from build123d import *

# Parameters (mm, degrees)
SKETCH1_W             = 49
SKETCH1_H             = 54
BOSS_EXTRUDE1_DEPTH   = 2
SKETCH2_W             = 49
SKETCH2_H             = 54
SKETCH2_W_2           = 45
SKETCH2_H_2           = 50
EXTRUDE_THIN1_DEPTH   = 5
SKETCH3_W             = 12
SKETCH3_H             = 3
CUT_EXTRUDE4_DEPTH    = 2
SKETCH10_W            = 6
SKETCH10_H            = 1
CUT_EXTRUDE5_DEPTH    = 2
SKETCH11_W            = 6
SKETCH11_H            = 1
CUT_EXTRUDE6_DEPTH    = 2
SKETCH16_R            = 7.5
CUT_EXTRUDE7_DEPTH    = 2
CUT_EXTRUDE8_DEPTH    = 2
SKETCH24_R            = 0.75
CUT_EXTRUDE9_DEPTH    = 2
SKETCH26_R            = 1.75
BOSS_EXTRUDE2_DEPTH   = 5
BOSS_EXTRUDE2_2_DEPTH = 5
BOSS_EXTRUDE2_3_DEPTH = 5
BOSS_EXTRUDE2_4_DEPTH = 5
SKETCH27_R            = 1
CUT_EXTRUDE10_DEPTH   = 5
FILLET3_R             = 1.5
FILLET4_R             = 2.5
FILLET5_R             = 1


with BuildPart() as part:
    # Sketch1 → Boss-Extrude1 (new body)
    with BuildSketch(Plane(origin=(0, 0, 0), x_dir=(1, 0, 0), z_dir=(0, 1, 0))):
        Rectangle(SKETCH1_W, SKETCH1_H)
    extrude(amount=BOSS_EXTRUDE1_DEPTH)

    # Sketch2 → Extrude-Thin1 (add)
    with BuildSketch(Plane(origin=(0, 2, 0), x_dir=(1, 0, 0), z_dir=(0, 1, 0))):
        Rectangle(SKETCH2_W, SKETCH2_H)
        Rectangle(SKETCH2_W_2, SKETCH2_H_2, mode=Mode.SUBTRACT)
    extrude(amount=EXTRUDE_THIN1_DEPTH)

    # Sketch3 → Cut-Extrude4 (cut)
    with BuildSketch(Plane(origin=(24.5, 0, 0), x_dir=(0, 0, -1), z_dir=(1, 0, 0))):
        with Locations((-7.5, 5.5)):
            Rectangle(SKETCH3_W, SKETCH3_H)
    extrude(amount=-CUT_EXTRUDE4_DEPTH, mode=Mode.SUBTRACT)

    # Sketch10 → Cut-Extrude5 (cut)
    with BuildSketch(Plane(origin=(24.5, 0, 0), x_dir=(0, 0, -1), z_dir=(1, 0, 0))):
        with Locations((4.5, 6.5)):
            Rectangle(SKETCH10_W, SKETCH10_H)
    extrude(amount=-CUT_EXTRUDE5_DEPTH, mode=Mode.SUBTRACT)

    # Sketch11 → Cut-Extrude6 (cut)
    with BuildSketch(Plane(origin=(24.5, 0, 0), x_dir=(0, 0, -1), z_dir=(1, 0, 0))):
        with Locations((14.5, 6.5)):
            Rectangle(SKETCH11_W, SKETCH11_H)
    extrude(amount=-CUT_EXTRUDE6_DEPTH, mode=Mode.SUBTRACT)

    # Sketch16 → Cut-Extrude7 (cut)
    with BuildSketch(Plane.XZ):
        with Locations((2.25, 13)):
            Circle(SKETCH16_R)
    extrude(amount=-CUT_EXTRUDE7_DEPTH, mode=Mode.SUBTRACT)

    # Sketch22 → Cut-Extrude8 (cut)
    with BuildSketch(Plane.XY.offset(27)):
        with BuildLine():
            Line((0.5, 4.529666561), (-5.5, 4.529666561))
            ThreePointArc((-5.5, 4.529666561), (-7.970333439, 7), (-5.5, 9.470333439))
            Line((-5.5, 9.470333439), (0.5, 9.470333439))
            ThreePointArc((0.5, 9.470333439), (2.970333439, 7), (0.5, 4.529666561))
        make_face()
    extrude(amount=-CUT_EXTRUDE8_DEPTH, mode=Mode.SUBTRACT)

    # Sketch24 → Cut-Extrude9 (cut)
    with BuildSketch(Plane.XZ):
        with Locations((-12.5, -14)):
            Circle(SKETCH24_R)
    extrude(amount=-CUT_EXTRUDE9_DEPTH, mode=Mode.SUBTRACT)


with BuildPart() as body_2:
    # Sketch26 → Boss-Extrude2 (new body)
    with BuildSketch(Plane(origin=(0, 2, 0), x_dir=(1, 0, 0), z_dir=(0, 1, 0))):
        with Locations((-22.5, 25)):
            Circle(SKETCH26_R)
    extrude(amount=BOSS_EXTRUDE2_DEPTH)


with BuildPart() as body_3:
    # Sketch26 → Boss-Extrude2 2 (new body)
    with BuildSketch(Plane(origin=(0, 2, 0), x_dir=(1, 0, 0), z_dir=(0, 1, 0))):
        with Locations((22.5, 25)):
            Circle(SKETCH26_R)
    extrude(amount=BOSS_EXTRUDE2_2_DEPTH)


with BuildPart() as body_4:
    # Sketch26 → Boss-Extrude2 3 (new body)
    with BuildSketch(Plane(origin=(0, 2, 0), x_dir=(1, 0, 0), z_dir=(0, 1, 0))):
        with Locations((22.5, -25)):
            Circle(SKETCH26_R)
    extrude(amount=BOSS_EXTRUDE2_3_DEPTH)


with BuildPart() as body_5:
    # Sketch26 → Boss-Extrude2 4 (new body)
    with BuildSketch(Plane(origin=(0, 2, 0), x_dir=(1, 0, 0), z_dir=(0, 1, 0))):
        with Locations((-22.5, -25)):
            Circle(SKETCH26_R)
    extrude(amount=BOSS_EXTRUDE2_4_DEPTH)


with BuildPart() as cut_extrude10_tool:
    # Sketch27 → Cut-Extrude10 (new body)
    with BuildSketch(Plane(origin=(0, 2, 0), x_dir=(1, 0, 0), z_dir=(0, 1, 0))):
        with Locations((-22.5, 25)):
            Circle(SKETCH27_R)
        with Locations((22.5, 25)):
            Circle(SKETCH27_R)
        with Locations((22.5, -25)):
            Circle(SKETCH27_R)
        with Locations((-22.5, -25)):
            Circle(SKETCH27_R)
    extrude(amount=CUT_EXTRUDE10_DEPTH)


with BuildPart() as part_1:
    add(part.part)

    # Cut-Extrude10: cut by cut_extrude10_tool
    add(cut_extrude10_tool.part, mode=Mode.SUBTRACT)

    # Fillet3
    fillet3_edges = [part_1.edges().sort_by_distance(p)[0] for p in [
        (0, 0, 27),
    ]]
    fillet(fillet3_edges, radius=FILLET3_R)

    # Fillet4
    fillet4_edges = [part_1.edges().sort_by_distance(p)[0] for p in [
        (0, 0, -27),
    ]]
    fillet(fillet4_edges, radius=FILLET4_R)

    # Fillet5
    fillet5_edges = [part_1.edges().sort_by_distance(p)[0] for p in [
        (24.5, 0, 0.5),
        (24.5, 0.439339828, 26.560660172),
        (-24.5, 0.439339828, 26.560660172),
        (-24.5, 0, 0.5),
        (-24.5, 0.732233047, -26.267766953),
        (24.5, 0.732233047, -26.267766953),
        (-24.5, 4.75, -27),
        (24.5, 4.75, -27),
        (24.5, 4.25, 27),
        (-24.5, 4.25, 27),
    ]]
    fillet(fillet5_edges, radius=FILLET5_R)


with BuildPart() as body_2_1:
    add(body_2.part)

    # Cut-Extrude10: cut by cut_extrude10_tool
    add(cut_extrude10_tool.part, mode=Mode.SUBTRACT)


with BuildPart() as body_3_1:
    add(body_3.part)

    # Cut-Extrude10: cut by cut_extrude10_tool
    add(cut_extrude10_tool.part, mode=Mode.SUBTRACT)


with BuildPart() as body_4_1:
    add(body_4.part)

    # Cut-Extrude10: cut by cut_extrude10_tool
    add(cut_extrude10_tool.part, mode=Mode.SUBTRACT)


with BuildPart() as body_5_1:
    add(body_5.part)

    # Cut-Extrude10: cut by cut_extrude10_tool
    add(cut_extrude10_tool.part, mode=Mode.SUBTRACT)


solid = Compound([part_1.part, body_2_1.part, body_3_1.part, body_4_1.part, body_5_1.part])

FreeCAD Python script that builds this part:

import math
import FreeCAD as App
import Part
import Sketcher
Q = App.Units.Quantity


def edges_at(feature, points):
    """Names of the edges that pass closest to the given points."""
    edges = feature.Shape.Edges
    near = lambda p: min(range(len(edges)), key=lambda i: edges[i].distToShape(Part.Vertex(*p))[0])
    return sorted({f"Edge{near(p) + 1}" for p in points})


def add_polygon(sketch, points):
    """Adds a closed chain of lines whose ends are joined by coincident constraints."""
    first, n = sketch.GeometryCount, len(points)
    for a, b in zip(points, points[1:] + points[:1]):
        sketch.addGeometry(Part.LineSegment(App.Vector(*a, 0), App.Vector(*b, 0)), False)
    for i in range(n):
        sketch.addConstraint(Sketcher.Constraint("Coincident", first + i, 2, first + (i + 1) % n, 1))

doc = App.newDocument("Part")
params = doc.addObject("Spreadsheet::Sheet", "Params")
for row, (alias, value) in enumerate([
    ("sketch1_width", "49 mm"),
    ("sketch1_height", "54 mm"),
    ("pad1_length", "2 mm"),
    ("sketch2_width", "49 mm"),
    ("sketch2_width2", "45 mm"),
    ("sketch2_height", "54 mm"),
    ("sketch2_height2", "50 mm"),
    ("pad2_length", "5 mm"),
    ("sketch3_width", "3 mm"),
    ("sketch3_height", "12 mm"),
    ("pocket1_length", "2 mm"),
    ("sketch4_width", "1 mm"),
    ("sketch4_height", "6 mm"),
    ("pocket2_length", "2 mm"),
    ("sketch5_width", "1 mm"),
    ("sketch5_height", "6 mm"),
    ("pocket3_length", "2 mm"),
    ("sketch6_diameter", "15 mm"),
    ("pocket4_length", "2 mm"),
    ("sketch7_width", "6 mm"),
    ("pocket5_length", "2 mm"),
    ("sketch8_diameter", "1.5 mm"),
    ("pocket6_length", "2 mm"),
    ("sketch9_diameter", "3.5 mm"),
    ("pad3_length", "5 mm"),
    ("sketch10_diameter", "3.5 mm"),
    ("pad4_length", "5 mm"),
    ("sketch11_diameter", "3.5 mm"),
    ("pad5_length", "5 mm"),
    ("sketch12_diameter", "3.5 mm"),
    ("pad6_length", "5 mm"),
    ("sketch13_diameter", "2 mm"),
    ("pad7_length", "5 mm"),
    ("fillet_radius", "1.5 mm"),
    ("fillet2_radius", "2.5 mm"),
    ("fillet3_radius", "1 mm"),
], start=1):
    params.set(f"A{row}", alias)
    params.set(f"B{row}", "=" + value)
    params.setAlias(f"B{row}", alias)

body = doc.addObject("PartDesign::Body", "Body")

# Sketch on XZ plane
sketch1 = body.newObject("Sketcher::SketchObject", "Sketch")
sketch1.AttachmentSupport = (doc.getObject("XZ_Plane"), [""])
sketch1.MapMode = "FlatFace"
add_polygon(sketch1, [(-24, -27), (-24, 27), (24, 27), (24, -27)])  # lines 0-3
sketch1.addConstraint([
    Sketcher.Constraint("Vertical", 0),
    Sketcher.Constraint("Horizontal", 1),
    Sketcher.Constraint("Vertical", 2),
    Sketcher.Constraint("Horizontal", 3),
    Sketcher.Constraint("Symmetric", 0, 2, 2, 2, -1, 1),
    Sketcher.Constraint("DistanceX", 1, 1, 1, 2, Q("49 mm")),
    Sketcher.Constraint("DistanceY", 0, 1, 0, 2, Q("54 mm")),
])
sketch1.setExpression("Constraints[9]", "Params.sketch1_width")
sketch1.setExpression("Constraints[10]", "Params.sketch1_height")
pad1 = body.newObject("PartDesign::Pad", "Pad")
pad1.Profile = sketch1
pad1.setExpression("Length", "Params.pad1_length")
pad1.Reversed = True

# Sketch on XZ plane
sketch2 = body.newObject("Sketcher::SketchObject", "Sketch001")
sketch2.AttachmentSupport = (doc.getObject("XZ_Plane"), [""])
sketch2.MapMode = "FlatFace"
sketch2.AttachmentOffset = App.Placement(App.Vector(0, 0, -2), App.Rotation())
add_polygon(sketch2, [(-24, -27), (-24, 27), (24, 27), (24, -27)])  # lines 0-3
add_polygon(sketch2, [(22, 25), (-22, 25), (-22, -25), (22, -25)])  # lines 4-7
sketch2.addConstraint([
    Sketcher.Constraint("Vertical", 0),
    Sketcher.Constraint("Horizontal", 1),
    Sketcher.Constraint("Vertical", 2),
    Sketcher.Constraint("Horizontal", 3),
    Sketcher.Constraint("Horizontal", 4),
    Sketcher.Constraint("Vertical", 5),
    Sketcher.Constraint("Horizontal", 6),
    Sketcher.Constraint("Vertical", 7),
    Sketcher.Constraint("Symmetric", 0, 2, 2, 2, -1, 1),
    Sketcher.Constraint("Symmetric", 4, 2, 6, 2, -1, 1),
    Sketcher.Constraint("DistanceX", 1, 1, 1, 2, Q("49 mm")),
    Sketcher.Constraint("DistanceX", 4, 2, 4, 1, Q("45 mm")),
    Sketcher.Constraint("DistanceY", 0, 1, 0, 2, Q("54 mm")),
    Sketcher.Constraint("DistanceY", 5, 2, 5, 1, Q("50 mm")),
])
sketch2.setExpression("Constraints[18]", "Params.sketch2_width")
sketch2.setExpression("Constraints[19]", "Params.sketch2_width2")
sketch2.setExpression("Constraints[20]", "Params.sketch2_height")
sketch2.setExpression("Constraints[21]", "Params.sketch2_height2")
pad2 = body.newObject("PartDesign::Pad", "Pad001")
pad2.Profile = sketch2
pad2.setExpression("Length", "Params.pad2_length")
pad2.Reversed = True

# Sketch on YZ plane
sketch3 = body.newObject("Sketcher::SketchObject", "Sketch002")
sketch3.AttachmentSupport = (doc.getObject("YZ_Plane"), [""])
sketch3.MapMode = "FlatFace"
sketch3.AttachmentOffset = App.Placement(App.Vector(0, 0, 24.5), App.Rotation())
add_polygon(sketch3, [(7, 13.5), (4, 13.5), (4, 1.5), (7, 1.5)])  # lines 0-3
sketch3.addConstraint([
    Sketcher.Constraint("Horizontal", 0),
    Sketcher.Constraint("Vertical", 1),
    Sketcher.Constraint("Horizontal", 2),
    Sketcher.Constraint("Vertical", 3),
    Sketcher.Constraint("DistanceX", 0, 2, 0, 1, Q("3 mm")),
    Sketcher.Constraint("DistanceY", 1, 2, 1, 1, Q("12 mm")),
    Sketcher.Constraint("DistanceX", -1, 1, 0, 2, Q("4 mm")),
    Sketcher.Constraint("DistanceY", -1, 1, 0, 2, Q("13.5 mm")),
])
sketch3.setExpression("Constraints[8]", "Params.sketch3_width")
sketch3.setExpression("Constraints[9]", "Params.sketch3_height")
pocket1 = body.newObject("PartDesign::Pocket", "Pocket")
pocket1.Profile = sketch3
pocket1.setExpression("Length", "Params.pocket1_length")

# Sketch on YZ plane
sketch4 = body.newObject("Sketcher::SketchObject", "Sketch003")
sketch4.AttachmentSupport = (doc.getObject("YZ_Plane"), [""])
sketch4.MapMode = "FlatFace"
sketch4.AttachmentOffset = App.Placement(App.Vector(0, 0, 24.5), App.Rotation())
add_polygon(sketch4, [(7, -1.5), (6, -1.5), (6, -7.5), (7, -7.5)])  # lines 0-3
sketch4.addConstraint([
    Sketcher.Constraint("Horizontal", 0),
    Sketcher.Constraint("Vertical", 1),
    Sketcher.Constraint("Horizontal", 2),
    Sketcher.Constraint("Vertical", 3),
    Sketcher.Constraint("DistanceX", 0, 2, 0, 1, Q("1 mm")),
    Sketcher.Constraint("DistanceY", 1, 2, 1, 1, Q("6 mm")),
    Sketcher.Constraint("DistanceX", -1, 1, 0, 2, Q("6 mm")),
    Sketcher.Constraint("DistanceY", 0, 2, -1, 1, Q("1.5 mm")),
])
sketch4.setExpression("Constraints[8]", "Params.sketch4_width")
sketch4.setExpression("Constraints[9]", "Params.sketch4_height")
pocket2 = body.newObject("PartDesign::Pocket", "Pocket001")
pocket2.Profile = sketch4
pocket2.setExpression("Length", "Params.pocket2_length")

# Sketch on YZ plane
sketch5 = body.newObject("Sketcher::SketchObject", "Sketch004")
sketch5.AttachmentSupport = (doc.getObject("YZ_Plane"), [""])
sketch5.MapMode = "FlatFace"
sketch5.AttachmentOffset = App.Placement(App.Vector(0, 0, 24.5), App.Rotation())
add_polygon(sketch5, [(7, -11.5), (6, -11.5), (6, -17.5), (7, -17.5)])  # lines 0-3
sketch5.addConstraint([
    Sketcher.Constraint("Horizontal", 0),
    Sketcher.Constraint("Vertical", 1),
    Sketcher.Constraint("Horizontal", 2),
    Sketcher.Constraint("Vertical", 3),
    Sketcher.Constraint("DistanceX", 0, 2, 0, 1, Q("1 mm")),
    Sketcher.Constraint("DistanceY", 1, 2, 1, 1, Q("6 mm")),
    Sketcher.Constraint("DistanceX", -1, 1, 0, 2, Q("6 mm")),
    Sketcher.Constraint("DistanceY", 0, 2, -1, 1, Q("11.5 mm")),
])
sketch5.setExpression("Constraints[8]", "Params.sketch5_width")
sketch5.setExpression("Constraints[9]", "Params.sketch5_height")
pocket3 = body.newObject("PartDesign::Pocket", "Pocket002")
pocket3.Profile = sketch5
pocket3.setExpression("Length", "Params.pocket3_length")

# Sketch on XZ plane
sketch6 = body.newObject("Sketcher::SketchObject", "Sketch005")
sketch6.AttachmentSupport = (doc.getObject("XZ_Plane"), [""])
sketch6.MapMode = "FlatFace"
sketch6.addGeometry(Part.Circle(App.Vector(2, 13, 0), App.Vector(0, 0, 1), 8), False)
sketch6.addConstraint([
    Sketcher.Constraint("Diameter", 0, Q("15 mm")),
    Sketcher.Constraint("DistanceY", -1, 1, 0, 3, Q("13 mm")),
    Sketcher.Constraint("DistanceX", -1, 1, 0, 3, Q("2.25 mm")),
])
sketch6.setExpression("Constraints[0]", "Params.sketch6_diameter")
pocket4 = body.newObject("PartDesign::Pocket", "Pocket003")
pocket4.Profile = sketch6
pocket4.setExpression("Length", "Params.pocket4_length")

# Sketch on XY plane
sketch7 = body.newObject("Sketcher::SketchObject", "Sketch006")
sketch7.AttachmentSupport = (doc.getObject("XY_Plane"), [""])
sketch7.MapMode = "FlatFace"
sketch7.AttachmentOffset = App.Placement(App.Vector(0, 0, 27), App.Rotation())
sketch7.addGeometry([
    Part.LineSegment(App.Vector(-5.5, 4.5, 0), App.Vector(0.5, 4.5, 0)),
    Part.ArcOfCircle(Part.Circle(App.Vector(0.5, 7, 0), App.Vector(0, 0, 1), 2.5), math.radians(-90), math.radians(90)),
    Part.LineSegment(App.Vector(0.5, 9.5, 0), App.Vector(-5.5, 9.5, 0)),
    Part.ArcOfCircle(Part.Circle(App.Vector(-5.5, 7, 0), App.Vector(0, 0, 1), 2.5), math.radians(90), math.radians(270)),
], False)
sketch7.addConstraint([
    Sketcher.Constraint("Tangent", 0, 2, 1, 1),
    Sketcher.Constraint("Tangent", 1, 2, 2, 1),
    Sketcher.Constraint("Tangent", 2, 2, 3, 1),
    Sketcher.Constraint("Tangent", 3, 2, 0, 1),
    Sketcher.Constraint("Horizontal", 0),
    Sketcher.Constraint("Horizontal", 2),
    Sketcher.Constraint("DistanceX", 0, 1, 0, 2, Q("6 mm")),
    Sketcher.Constraint("DistanceY", -1, 1, 1, 3, Q("7 mm")),
    Sketcher.Constraint("DistanceX", -1, 1, 1, 3, Q("0.5 mm")),
    Sketcher.Constraint("Radius", 1, Q("2.470333 mm")),
])
sketch7.setExpression("Constraints[6]", "Params.sketch7_width")
pocket5 = body.newObject("PartDesign::Pocket", "Pocket004")
pocket5.Profile = sketch7
pocket5.setExpression("Length", "Params.pocket5_length")

# Sketch on XZ plane
sketch8 = body.newObject("Sketcher::SketchObject", "Sketch007")
sketch8.AttachmentSupport = (doc.getObject("XZ_Plane"), [""])
sketch8.MapMode = "FlatFace"
sketch8.addGeometry(Part.Circle(App.Vector(-12.5, -14, 0), App.Vector(0, 0, 1), 0.8), False)
sketch8.addConstraint([
    Sketcher.Constraint("Diameter", 0, Q("1.5 mm")),
    Sketcher.Constraint("DistanceY", 0, 3, -1, 1, Q("14 mm")),
    Sketcher.Constraint("DistanceX", 0, 3, -1, 1, Q("12.5 mm")),
])
sketch8.setExpression("Constraints[0]", "Params.sketch8_diameter")
pocket6 = body.newObject("PartDesign::Pocket", "Pocket005")
pocket6.Profile = sketch8
pocket6.setExpression("Length", "Params.pocket6_length")
body2 = doc.addObject("PartDesign::Body", "Body001")

# Sketch on XZ plane
sketch9 = body2.newObject("Sketcher::SketchObject", "Sketch008")
sketch9.AttachmentSupport = (doc.getObject("XZ_Plane001"), [""])
sketch9.MapMode = "FlatFace"
sketch9.AttachmentOffset = App.Placement(App.Vector(0, 0, -2), App.Rotation())
sketch9.addGeometry(Part.Circle(App.Vector(-22.5, -25, 0), App.Vector(0, 0, 1), 1.8), False)
sketch9.addConstraint([
    Sketcher.Constraint("Diameter", 0, Q("3.5 mm")),
    Sketcher.Constraint("DistanceY", 0, 3, -1, 1, Q("25 mm")),
    Sketcher.Constraint("DistanceX", 0, 3, -1, 1, Q("22.5 mm")),
])
sketch9.setExpression("Constraints[0]", "Params.sketch9_diameter")
pad3 = body2.newObject("PartDesign::Pad", "Pad002")
pad3.Profile = sketch9
pad3.setExpression("Length", "Params.pad3_length")
pad3.Reversed = True
body3 = doc.addObject("PartDesign::Body", "Body002")

# Sketch on XZ plane
sketch10 = body3.newObject("Sketcher::SketchObject", "Sketch009")
sketch10.AttachmentSupport = (doc.getObject("XZ_Plane002"), [""])
sketch10.MapMode = "FlatFace"
sketch10.AttachmentOffset = App.Placement(App.Vector(0, 0, -2), App.Rotation())
sketch10.addGeometry(Part.Circle(App.Vector(22.5, -25, 0), App.Vector(0, 0, 1), 1.8), False)
sketch10.addConstraint([
    Sketcher.Constraint("Diameter", 0, Q("3.5 mm")),
    Sketcher.Constraint("DistanceY", 0, 3, -1, 1, Q("25 mm")),
    Sketcher.Constraint("DistanceX", -1, 1, 0, 3, Q("22.5 mm")),
])
sketch10.setExpression("Constraints[0]", "Params.sketch10_diameter")
pad4 = body3.newObject("PartDesign::Pad", "Pad003")
pad4.Profile = sketch10
pad4.setExpression("Length", "Params.pad4_length")
pad4.Reversed = True
body4 = doc.addObject("PartDesign::Body", "Body003")

# Sketch on XZ plane
sketch11 = body4.newObject("Sketcher::SketchObject", "Sketch010")
sketch11.AttachmentSupport = (doc.getObject("XZ_Plane003"), [""])
sketch11.MapMode = "FlatFace"
sketch11.AttachmentOffset = App.Placement(App.Vector(0, 0, -2), App.Rotation())
sketch11.addGeometry(Part.Circle(App.Vector(22.5, 25, 0), App.Vector(0, 0, 1), 1.8), False)
sketch11.addConstraint([
    Sketcher.Constraint("Diameter", 0, Q("3.5 mm")),
    Sketcher.Constraint("DistanceY", -1, 1, 0, 3, Q("25 mm")),
    Sketcher.Constraint("DistanceX", -1, 1, 0, 3, Q("22.5 mm")),
])
sketch11.setExpression("Constraints[0]", "Params.sketch11_diameter")
pad5 = body4.newObject("PartDesign::Pad", "Pad004")
pad5.Profile = sketch11
pad5.setExpression("Length", "Params.pad5_length")
pad5.Reversed = True
body5 = doc.addObject("PartDesign::Body", "Body004")

# Sketch on XZ plane
sketch12 = body5.newObject("Sketcher::SketchObject", "Sketch011")
sketch12.AttachmentSupport = (doc.getObject("XZ_Plane004"), [""])
sketch12.MapMode = "FlatFace"
sketch12.AttachmentOffset = App.Placement(App.Vector(0, 0, -2), App.Rotation())
sketch12.addGeometry(Part.Circle(App.Vector(-22.5, 25, 0), App.Vector(0, 0, 1), 1.8), False)
sketch12.addConstraint([
    Sketcher.Constraint("Diameter", 0, Q("3.5 mm")),
    Sketcher.Constraint("DistanceY", -1, 1, 0, 3, Q("25 mm")),
    Sketcher.Constraint("DistanceX", 0, 3, -1, 1, Q("22.5 mm")),
])
sketch12.setExpression("Constraints[0]", "Params.sketch12_diameter")
pad6 = body5.newObject("PartDesign::Pad", "Pad005")
pad6.Profile = sketch12
pad6.setExpression("Length", "Params.pad6_length")
pad6.Reversed = True
body6 = doc.addObject("PartDesign::Body", "Body005")
body6.AllowCompound = True

# Sketch on XZ plane
sketch13 = body6.newObject("Sketcher::SketchObject", "Sketch012")
sketch13.AttachmentSupport = (doc.getObject("XZ_Plane005"), [""])
sketch13.MapMode = "FlatFace"
sketch13.AttachmentOffset = App.Placement(App.Vector(0, 0, -2), App.Rotation())
sketch13.addGeometry([
    Part.Circle(App.Vector(-22.5, -25, 0), App.Vector(0, 0, 1), 1),
    Part.Circle(App.Vector(22.5, -25, 0), App.Vector(0, 0, 1), 1),
    Part.Circle(App.Vector(22.5, 25, 0), App.Vector(0, 0, 1), 1),
    Part.Circle(App.Vector(-22.5, 25, 0), App.Vector(0, 0, 1), 1),
], False)
sketch13.addConstraint([
    Sketcher.Constraint("Equal", 0, 1),
    Sketcher.Constraint("Equal", 1, 2),
    Sketcher.Constraint("Equal", 2, 3),
    Sketcher.Constraint("Symmetric", 0, 3, 2, 3, -1, 1),
    Sketcher.Constraint("Symmetric", 1, 3, 3, 3, -1, 1),
    Sketcher.Constraint("Symmetric", 0, 3, 1, 3, -2),
    Sketcher.Constraint("Diameter", 0, Q("2 mm")),
    Sketcher.Constraint("DistanceY", 0, 3, -1, 1, Q("25 mm")),
    Sketcher.Constraint("DistanceX", 0, 3, 1, 3, Q("45 mm")),
])
sketch13.setExpression("Constraints[6]", "Params.sketch13_diameter")
pad7 = body6.newObject("PartDesign::Pad", "Pad006")
pad7.Profile = sketch13
pad7.setExpression("Length", "Params.pad7_length")
pad7.Reversed = True
doc.recompute()

body7 = doc.addObject("PartDesign::Body", "Body006")
body7.BaseFeature = body6
boolean = body.newObject("PartDesign::Boolean", "Boolean")
boolean.Type = "Cut"
boolean.addObjects([body7])
doc.recompute()

fillet = body.newObject("PartDesign::Fillet", "Fillet")
fillet.Base = (boolean, edges_at(boolean, [(0, 0, 27)]))
fillet.setExpression("Radius", "Params.fillet_radius")
doc.recompute()

fillet2 = body.newObject("PartDesign::Fillet", "Fillet001")
fillet2.Base = (fillet, edges_at(fillet, [(0, 0, -27)]))
fillet2.setExpression("Radius", "Params.fillet2_radius")
doc.recompute()

fillet3 = body.newObject("PartDesign::Fillet", "Fillet002")
fillet3.Base = (fillet2, edges_at(fillet2, [
    (24.5, 0, 0.5),
    (24.5, 0.439, 26.561),
    (-24.5, 0.439, 26.561),
    (-24.5, 0, 0.5),
    (-24.5, 0.732, -26.268),
    (24.5, 0.732, -26.268),
    (-24.5, 4.75, -27),
    (24.5, 4.75, -27),
    (24.5, 4.25, 27),
    (-24.5, 4.25, 27),
]))
fillet3.setExpression("Radius", "Params.fillet3_radius")
doc.recompute()

body8 = doc.addObject("PartDesign::Body", "Body007")
body8.BaseFeature = body6
boolean2 = body2.newObject("PartDesign::Boolean", "Boolean001")
boolean2.Type = "Cut"
boolean2.addObjects([body8])
doc.recompute()

body9 = doc.addObject("PartDesign::Body", "Body008")
body9.BaseFeature = body6
boolean3 = body3.newObject("PartDesign::Boolean", "Boolean002")
boolean3.Type = "Cut"
boolean3.addObjects([body9])
doc.recompute()

body10 = doc.addObject("PartDesign::Body", "Body009")
body10.BaseFeature = body6
boolean4 = body4.newObject("PartDesign::Boolean", "Boolean003")
boolean4.Type = "Cut"
boolean4.addObjects([body10])
doc.recompute()

boolean5 = body5.newObject("PartDesign::Boolean", "Boolean004")
boolean5.Type = "Cut"
boolean5.addObjects([body6])

doc.recompute()
